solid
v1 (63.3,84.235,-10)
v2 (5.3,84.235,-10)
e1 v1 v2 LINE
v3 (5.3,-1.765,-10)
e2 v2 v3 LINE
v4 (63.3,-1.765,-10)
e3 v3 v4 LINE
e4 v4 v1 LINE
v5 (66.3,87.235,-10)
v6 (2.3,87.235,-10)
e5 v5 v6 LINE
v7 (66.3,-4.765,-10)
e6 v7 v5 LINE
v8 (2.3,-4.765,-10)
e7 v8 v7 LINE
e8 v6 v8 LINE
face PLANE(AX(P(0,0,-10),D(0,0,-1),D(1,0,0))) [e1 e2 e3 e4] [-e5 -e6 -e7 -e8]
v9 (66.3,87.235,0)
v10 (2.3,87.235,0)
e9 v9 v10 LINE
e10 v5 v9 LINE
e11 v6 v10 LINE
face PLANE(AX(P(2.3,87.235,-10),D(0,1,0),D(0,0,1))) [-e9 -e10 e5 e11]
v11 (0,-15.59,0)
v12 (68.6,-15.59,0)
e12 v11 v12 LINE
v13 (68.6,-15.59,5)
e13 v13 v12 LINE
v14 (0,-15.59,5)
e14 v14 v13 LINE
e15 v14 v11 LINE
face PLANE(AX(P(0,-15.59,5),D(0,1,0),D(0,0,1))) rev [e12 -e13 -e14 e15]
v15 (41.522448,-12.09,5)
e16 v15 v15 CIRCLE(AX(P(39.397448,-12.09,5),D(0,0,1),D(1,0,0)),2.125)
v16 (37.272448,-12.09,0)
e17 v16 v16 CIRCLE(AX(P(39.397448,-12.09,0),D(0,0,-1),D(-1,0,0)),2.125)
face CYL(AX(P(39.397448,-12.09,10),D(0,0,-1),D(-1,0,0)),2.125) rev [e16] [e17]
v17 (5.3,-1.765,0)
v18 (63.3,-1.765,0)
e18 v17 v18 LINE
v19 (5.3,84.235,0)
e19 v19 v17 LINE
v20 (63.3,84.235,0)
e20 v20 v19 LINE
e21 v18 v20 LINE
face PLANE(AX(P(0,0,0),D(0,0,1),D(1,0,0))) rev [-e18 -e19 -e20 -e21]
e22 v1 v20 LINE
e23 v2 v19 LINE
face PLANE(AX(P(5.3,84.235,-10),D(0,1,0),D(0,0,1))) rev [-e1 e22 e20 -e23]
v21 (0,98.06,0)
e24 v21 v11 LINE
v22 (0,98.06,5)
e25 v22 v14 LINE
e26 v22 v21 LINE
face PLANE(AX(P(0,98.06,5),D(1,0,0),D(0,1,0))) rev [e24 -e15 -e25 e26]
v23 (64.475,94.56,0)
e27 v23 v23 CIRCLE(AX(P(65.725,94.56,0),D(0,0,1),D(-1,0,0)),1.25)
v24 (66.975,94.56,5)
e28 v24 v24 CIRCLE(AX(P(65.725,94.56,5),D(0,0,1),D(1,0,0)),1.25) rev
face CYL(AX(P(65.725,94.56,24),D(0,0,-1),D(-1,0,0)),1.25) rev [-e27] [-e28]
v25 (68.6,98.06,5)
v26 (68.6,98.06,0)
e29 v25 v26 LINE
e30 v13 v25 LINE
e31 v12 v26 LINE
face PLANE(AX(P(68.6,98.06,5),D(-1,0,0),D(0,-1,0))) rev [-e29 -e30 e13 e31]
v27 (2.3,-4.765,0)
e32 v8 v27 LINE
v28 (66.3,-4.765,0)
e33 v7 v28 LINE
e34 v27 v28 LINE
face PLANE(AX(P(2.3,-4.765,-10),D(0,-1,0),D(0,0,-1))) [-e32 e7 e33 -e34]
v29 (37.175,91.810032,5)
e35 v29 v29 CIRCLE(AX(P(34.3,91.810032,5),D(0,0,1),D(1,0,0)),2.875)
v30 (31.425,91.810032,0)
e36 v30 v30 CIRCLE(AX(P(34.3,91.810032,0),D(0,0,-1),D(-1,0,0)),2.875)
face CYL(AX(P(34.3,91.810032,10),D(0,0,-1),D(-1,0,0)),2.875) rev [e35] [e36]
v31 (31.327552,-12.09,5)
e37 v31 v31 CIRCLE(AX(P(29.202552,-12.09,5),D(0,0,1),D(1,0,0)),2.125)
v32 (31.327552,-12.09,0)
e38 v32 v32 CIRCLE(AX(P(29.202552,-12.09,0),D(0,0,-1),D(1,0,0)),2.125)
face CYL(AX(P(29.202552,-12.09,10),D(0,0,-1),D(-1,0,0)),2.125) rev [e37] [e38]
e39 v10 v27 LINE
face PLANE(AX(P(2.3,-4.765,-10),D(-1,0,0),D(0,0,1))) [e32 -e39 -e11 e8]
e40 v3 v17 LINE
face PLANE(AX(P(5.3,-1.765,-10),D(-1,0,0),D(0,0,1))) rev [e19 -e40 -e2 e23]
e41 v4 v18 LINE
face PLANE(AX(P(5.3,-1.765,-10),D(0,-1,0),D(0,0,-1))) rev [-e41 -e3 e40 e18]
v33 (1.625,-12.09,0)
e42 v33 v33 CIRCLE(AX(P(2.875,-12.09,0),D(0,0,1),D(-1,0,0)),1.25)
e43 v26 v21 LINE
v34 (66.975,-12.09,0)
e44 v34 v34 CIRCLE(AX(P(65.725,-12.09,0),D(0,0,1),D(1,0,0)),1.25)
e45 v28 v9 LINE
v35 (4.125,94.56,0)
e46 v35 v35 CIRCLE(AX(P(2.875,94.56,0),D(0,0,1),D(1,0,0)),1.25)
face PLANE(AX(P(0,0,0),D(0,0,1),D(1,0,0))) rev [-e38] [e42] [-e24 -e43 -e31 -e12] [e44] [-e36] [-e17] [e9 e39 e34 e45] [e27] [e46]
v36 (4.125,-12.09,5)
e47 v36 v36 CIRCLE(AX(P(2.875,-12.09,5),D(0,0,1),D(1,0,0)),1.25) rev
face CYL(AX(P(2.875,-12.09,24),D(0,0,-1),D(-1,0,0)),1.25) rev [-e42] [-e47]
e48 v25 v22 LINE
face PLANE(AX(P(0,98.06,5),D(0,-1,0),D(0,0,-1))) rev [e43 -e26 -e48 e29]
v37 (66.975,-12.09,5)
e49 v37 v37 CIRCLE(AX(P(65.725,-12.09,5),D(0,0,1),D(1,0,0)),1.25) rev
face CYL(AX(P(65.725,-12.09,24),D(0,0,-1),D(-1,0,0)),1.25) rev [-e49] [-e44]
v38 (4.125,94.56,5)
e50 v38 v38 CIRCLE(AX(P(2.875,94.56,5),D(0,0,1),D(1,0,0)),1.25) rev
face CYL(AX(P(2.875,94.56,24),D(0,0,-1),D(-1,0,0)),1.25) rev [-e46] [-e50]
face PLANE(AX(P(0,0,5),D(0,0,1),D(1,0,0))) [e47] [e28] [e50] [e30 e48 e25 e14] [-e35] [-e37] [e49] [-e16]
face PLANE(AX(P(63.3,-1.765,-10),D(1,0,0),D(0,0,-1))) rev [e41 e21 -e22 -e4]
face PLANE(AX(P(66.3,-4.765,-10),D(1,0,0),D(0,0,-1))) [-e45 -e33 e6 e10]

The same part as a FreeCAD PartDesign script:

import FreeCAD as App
import Part
import Sketcher

V = App.Vector

doc = App.newDocument("Part")
body = doc.addObject("PartDesign::Body", "Body")

# Sketch on XY plane
sketch1 = body.newObject("Sketcher::SketchObject", "Sketch")
sketch1.AttachmentSupport = (doc.getObject("XY_Plane"), [""])
sketch1.MapMode = "FlatFace"
sketch1.addGeometry([
    Part.LineSegment(V(0, 98, 0), V(0, -16, 0)),
    Part.LineSegment(V(0, -16, 0), V(69, -16, 0)),
    Part.LineSegment(V(69, -16, 0), V(69, 98, 0)),
    Part.LineSegment(V(69, 98, 0), V(0, 98, 0)),
], False)
sketch1.addConstraint([
    Sketcher.Constraint("Coincident", 0, 2, 1, 1),
    Sketcher.Constraint("Coincident", 1, 2, 2, 1),
    Sketcher.Constraint("Coincident", 2, 2, 3, 1),
    Sketcher.Constraint("Coincident", 3, 2, 0, 1),
    Sketcher.Constraint("Vertical", 0),
    Sketcher.Constraint("Horizontal", 1),
    Sketcher.Constraint("Vertical", 2),
    Sketcher.Constraint("Horizontal", 3),
    Sketcher.Constraint("PointOnObject", 0, 2, -2),
    Sketcher.Constraint("DistanceX", 1, 1, 1, 2, 68.6),
    Sketcher.Constraint("DistanceY", 0, 2, 0, 1, 113.65),
    Sketcher.Constraint("DistanceY", 0, 2, -1, 1, 15.59),
])
pad1 = body.newObject("PartDesign::Pad", "Pad")
pad1.Profile = sketch1
pad1.Length = 5

# Sketch on XY plane
sketch2 = body.newObject("Sketcher::SketchObject", "Sketch001")
sketch2.AttachmentSupport = (doc.getObject("XY_Plane"), [""])
sketch2.MapMode = "FlatFace"
sketch2.addGeometry([
    Part.Circle(V(2.5, 2.3, 0), V(0, 0, 1), 1.2),
    Part.Circle(V(2.5, 30.5, 0), V(0, 0, 1), 1.2),
    Part.Circle(V(54.6, 35.3, 0), V(0, 0, 1), 1.2),
    Part.Circle(V(53.4, -13, 0), V(0, 0, 1), 1.2),
], False)
sketch2.addConstraint([
    Sketcher.Constraint("Equal", 0, 1),
    Sketcher.Constraint("Equal", 1, 2),
    Sketcher.Constraint("Equal", 2, 3),
    Sketcher.Constraint("Vertical", 0, 3, 1, 3),
    Sketcher.Constraint("Diameter", 0, 2.5),
    Sketcher.Constraint("DistanceX", -1, 1, 2, 3, 54.6),
    Sketcher.Constraint("DistanceY", 3, 3, 1, 3, 43.5),
    Sketcher.Constraint("DistanceX", -1, 1, 0, 3, 2.54),
    Sketcher.Constraint("DistanceY", -1, 1, 0, 3, 2.28),
    Sketcher.Constraint("DistanceY", -1, 1, 1, 3, 30.45),
    Sketcher.Constraint("DistanceY", -1, 1, 2, 3, 35.27),
    Sketcher.Constraint("DistanceX", -1, 1, 3, 3, 53.35),
])
pocket1 = body.newObject("PartDesign::Pocket", "Pocket")
pocket1.Profile = sketch2
pocket1.Type = "ThroughAll"
pocket1.Midplane = True

# Sketch on XY plane
sketch3 = body.newObject("Sketcher::SketchObject", "Sketch002")
sketch3.AttachmentSupport = (doc.getObject("XY_Plane"), [""])
sketch3.MapMode = "FlatFace"
sketch3.addGeometry([
    Part.Circle(V(8.6, 86.1, 0), V(0, 0, 1), 1.2),
    Part.Circle(V(60, 86.1, 0), V(0, 0, 1), 1.2),
    Part.Circle(V(8.6, 42.8, 0), V(0, 0, 1), 1.2),
    Part.Circle(V(60, 42.8, 0), V(0, 0, 1), 1.2),
], False)
sketch3.addConstraint([
    Sketcher.Constraint("Equal", 0, 1),
    Sketcher.Constraint("Equal", 1, 2),
    Sketcher.Constraint("Equal", 2, 3),
    Sketcher.Constraint("Horizontal", 0, 3, 1, 3),
    Sketcher.Constraint("Horizontal", 2, 3, 3, 3),
    Sketcher.Constraint("Vertical", 0, 3, 2, 3),
    Sketcher.Constraint("Vertical", 1, 3, 3, 3),
    Sketcher.Constraint("Diameter", 0, 2.5),
    Sketcher.Constraint("DistanceY", -1, 1, 0, 3, 86.06),
    Sketcher.Constraint("DistanceY", -1, 1, 2, 3, 42.81),
    Sketcher.Constraint("DistanceX", 0, 3, 1, 3, 51.35),
    Sketcher.Constraint("DistanceX", -1, 1, 0, 3, 8.625),
])
pocket2 = body.newObject("PartDesign::Pocket", "Pocket001")
pocket2.Profile = sketch3
pocket2.Length = 20
pocket2.Reversed = True

# Sketch on XY plane
sketch4 = body.newObject("Sketcher::SketchObject", "Sketch003")
sketch4.AttachmentSupport = (doc.getObject("XY_Plane"), [""])
sketch4.MapMode = "FlatFace"
sketch4.addGeometry([
    Part.Circle(V(29.2, 94.6, 0), V(0, 0, 1), 2),
    Part.Circle(V(39.4, 94.6, 0), V(0, 0, 1), 2),
], False)
sketch4.addConstraint([
    Sketcher.Constraint("Equal", 0, 1),
    Sketcher.Constraint("Horizontal", 0, 3, 1, 3),
    Sketcher.Constraint("Diameter", 0, 4.0),
    Sketcher.Constraint("DistanceY", -1, 1, 0, 3, 94.56),
    Sketcher.Constraint("DistanceX", -1, 1, 0, 3, 29.202552),
    Sketcher.Constraint("DistanceX", -1, 1, 1, 3, 39.397448),
])
pocket3 = body.newObject("PartDesign::Pocket", "Pocket002")
pocket3.Profile = sketch4
pocket3.Length = 13
pocket3.Reversed = True

# Sketch on XY plane
sketch5 = body.newObject("Sketcher::SketchObject", "Sketch004")
sketch5.AttachmentSupport = (doc.getObject("XY_Plane"), [""])
sketch5.MapMode = "FlatFace"
sketch5.addGeometry([
    Part.Circle(V(2.9, 94.6, 0), V(0, 0, 1), 1.2),
    Part.Circle(V(65.7, 94.6, 0), V(0, 0, 1), 1.2),
    Part.Circle(V(65.7, -12.1, 0), V(0, 0, 1), 1.2),
    Part.Circle(V(2.9, -12.1, 0), V(0, 0, 1), 1.2),
], False)
sketch5.addConstraint([
    Sketcher.Constraint("Equal", 0, 1),
    Sketcher.Constraint("Equal", 1, 2),
    Sketcher.Constraint("Equal", 2, 3),
    Sketcher.Constraint("Horizontal", 0, 3, 1, 3),
    Sketcher.Constraint("Horizontal", 2, 3, 3, 3),
    Sketcher.Constraint("Vertical", 1, 3, 2, 3),
    Sketcher.Constraint("Vertical", 0, 3, 3, 3),
    Sketcher.Constraint("Diameter", 0, 2.5),
    Sketcher.Constraint("DistanceY", -1, 1, 0, 3, 94.56),
    Sketcher.Constraint("DistanceY", 2, 3, -1, 1, 12.09),
    Sketcher.Constraint("DistanceX", 0, 3, 1, 3, 62.85),
    Sketcher.Constraint("DistanceX", -1, 1, 0, 3, 2.875),
])
pocket4 = body.newObject("PartDesign::Pocket", "Pocket003")
pocket4.Profile = sketch5
pocket4.Length = 24
pocket4.Reversed = True

# Sketch on XY plane
sketch6 = body.newObject("Sketcher::SketchObject", "Sketch005")
sketch6.AttachmentSupport = (doc.getObject("XY_Plane"), [""])
sketch6.MapMode = "FlatFace"
sketch6.addGeometry([
    Part.Circle(V(53.4, -13, 0), V(0, 0, 1), 1.2),  # 0
    Part.Circle(V(2.5, 2.3, 0), V(0, 0, 1), 1.2),  # 1
    Part.Circle(V(2.5, 30.5, 0), V(0, 0, 1), 1.2),  # 2
    Part.Circle(V(54.6, 35.3, 0), V(0, 0, 1), 1.2),  # 3
    Part.Circle(V(60, 42.8, 0), V(0, 0, 1), 1.2),  # 4
    Part.Circle(V(8.6, 42.8, 0), V(0, 0, 1), 1.2),  # 5
    Part.Circle(V(60, 86.1, 0), V(0, 0, 1), 1.2),  # 6
    Part.Circle(V(39.4, 94.6, 0), V(0, 0, 1), 2),  # 7
    Part.Circle(V(29.2, 94.6, 0), V(0, 0, 1), 2),  # 8
    Part.Circle(V(8.6, 86.1, 0), V(0, 0, 1), 1.2),  # 9
], False)
sketch6.addConstraint([
    Sketcher.Constraint("Equal", 0, 1),
    Sketcher.Constraint("Equal", 1, 2),
    Sketcher.Constraint("Equal", 2, 3),
    Sketcher.Constraint("Equal", 3, 4),
    Sketcher.Constraint("Equal", 4, 5),
    Sketcher.Constraint("Equal", 5, 6),
    Sketcher.Constraint("Equal", 7, 8),
    Sketcher.Constraint("Equal", 6, 9),
    Sketcher.Constraint("Horizontal", 4, 3, 5, 3),
    Sketcher.Constraint("Horizontal", 7, 3, 8, 3),
    Sketcher.Constraint("Horizontal", 6, 3, 9, 3),
    Sketcher.Constraint("Vertical", 1, 3, 2, 3),
    Sketcher.Constraint("Vertical", 4, 3, 6, 3),
    Sketcher.Constraint("Vertical", 5, 3, 9, 3),
    Sketcher.Constraint("Diameter", 7, 4.0),
    Sketcher.Constraint("Diameter", 0, 2.5),
    Sketcher.Constraint("DistanceX", -1, 1, 3, 3, 54.6),
    Sketcher.Constraint("DistanceY", 0, 3, 2, 3, 43.5),
    Sketcher.Constraint("DistanceY", 6, 3, 7, 3, 8.5),
    Sketcher.Constraint("DistanceX", -1, 1, 0, 3, 53.35),
    Sketcher.Constraint("DistanceY", 0, 3, -1, 1, 13.05),
    Sketcher.Constraint("DistanceX", -1, 1, 1, 3, 2.54),
    Sketcher.Constraint("DistanceY", -1, 1, 1, 3, 2.28),
    Sketcher.Constraint("DistanceY", -1, 1, 3, 3, 35.27),
    Sketcher.Constraint("DistanceY", -1, 1, 4, 3, 42.81),
    Sketcher.Constraint("DistanceY", -1, 1, 6, 3, 86.06),
    Sketcher.Constraint("DistanceX", 5, 3, 4, 3, 51.35),
    Sketcher.Constraint("DistanceX", -1, 1, 4, 3, 59.975),
    Sketcher.Constraint("DistanceX", -1, 1, 7, 3, 39.397448),
    Sketcher.Constraint("DistanceX", -1, 1, 8, 3, 29.202552),
])
pad2 = body.newObject("PartDesign::Pad", "Pad001")
pad2.Profile = sketch6
pad2.Length = 5

# Sketch on XY plane
sketch7 = body.newObject("Sketcher::SketchObject", "Sketch006")
sketch7.AttachmentSupport = (doc.getObject("XY_Plane"), [""])
sketch7.MapMode = "FlatFace"
sketch7.AttachmentOffset = App.Placement(V(0, 0, 5), App.Rotation())
sketch7.addGeometry([
    Part.LineSegment(V(2, 87, 0), V(2, -5, 0)),  # 0
    Part.LineSegment(V(2, -5, 0), V(66, -5, 0)),  # 1
    Part.LineSegment(V(66, -5, 0), V(66, 87, 0)),  # 2
    Part.LineSegment(V(66, 87, 0), V(2, 87, 0)),  # 3
    Part.LineSegment(V(63, -2, 0), V(5, -2, 0)),  # 4
    Part.LineSegment(V(5, -2, 0), V(5, 84, 0)),  # 5
    Part.LineSegment(V(5, 84, 0), V(63, 84, 0)),  # 6
    Part.LineSegment(V(63, 84, 0), V(63, -2, 0)),  # 7
], False)
sketch7.addConstraint([
    Sketcher.Constraint("Coincident", 0, 2, 1, 1),
    Sketcher.Constraint("Coincident", 1, 2, 2, 1),
    Sketcher.Constraint("Coincident", 2, 2, 3, 1),
    Sketcher.Constraint("Coincident", 3, 2, 0, 1),
    Sketcher.Constraint("Coincident", 4, 2, 5, 1),
    Sketcher.Constraint("Coincident", 5, 2, 6, 1),
    Sketcher.Constraint("Coincident", 6, 2, 7, 1),
    Sketcher.Constraint("Coincident", 7, 2, 4, 1),
    Sketcher.Constraint("Vertical", 0),
    Sketcher.Constraint("Horizontal", 1),
    Sketcher.Constraint("Vertical", 2),
    Sketcher.Constraint("Horizontal", 3),
    Sketcher.Constraint("Horizontal", 4),
    Sketcher.Constraint("Vertical", 5),
    Sketcher.Constraint("Horizontal", 6),
    Sketcher.Constraint("Vertical", 7),
    Sketcher.Constraint("DistanceX", 1, 1, 1, 2, 64.0),
    Sketcher.Constraint("DistanceX", 4, 2, 4, 1, 58.0),
    Sketcher.Constraint("DistanceY", 0, 2, 0, 1, 92.0),
    Sketcher.Constraint("DistanceY", 5, 1, 5, 2, 86.0),
    Sketcher.Constraint("DistanceX", 0, 2, 4, 2, 3.0),
    Sketcher.Constraint("DistanceY", 0, 2, 4, 2, 3.0),
    Sketcher.Constraint("DistanceX", -1, 1, 0, 2, 2.3),
    Sketcher.Constraint("DistanceY", 0, 2, -1, 1, 4.765),
])
pad3 = body.newObject("PartDesign::Pad", "Pad002")
pad3.Profile = sketch7
pad3.Length = 10
doc.recompute()

datumplane = body.newObject("PartDesign::Plane", "DatumPlane")
datumplane.AttachmentSupport = (doc.getObject("XY_Plane"), [""])
datumplane.MapMode = "FlatFace"
datumplane.AttachmentOffset = App.Placement(V(0, 0, 2.5), App.Rotation())
mirrored = body.newObject("PartDesign::Mirrored", "Mirrored")
mirrored.Originals = [pad3]
mirrored.MirrorPlane = (datumplane, [""])
body.Tip = mirrored

# Sketch on XZ plane
sketch8 = body.newObject("Sketcher::SketchObject", "Sketch007")
sketch8.AttachmentSupport = (doc.getObject("XZ_Plane"), [""])
sketch8.MapMode = "FlatFace"
sketch8.AttachmentOffset = App.Placement(V(0, 0, -87.235), App.Rotation())
sketch8.addGeometry([
    Part.LineSegment(V(2, 5, 0), V(2, 15, 0)),
    Part.LineSegment(V(2, 15, 0), V(66, 15, 0)),
    Part.LineSegment(V(66, 15, 0), V(66, 5, 0)),
    Part.LineSegment(V(66, 5, 0), V(2, 5, 0)),
], False)
sketch8.addConstraint([
    Sketcher.Constraint("Coincident", 0, 2, 1, 1),
    Sketcher.Constraint("Coincident", 1, 2, 2, 1),
    Sketcher.Constraint("Coincident", 2, 2, 3, 1),
    Sketcher.Constraint("Coincident", 3, 2, 0, 1),
    Sketcher.Constraint("Vertical", 0),
    Sketcher.Constraint("Horizontal", 1),
    Sketcher.Constraint("Vertical", 2),
    Sketcher.Constraint("Horizontal", 3),
    Sketcher.Constraint("DistanceX", 1, 1, 1, 2, 64.0),
    Sketcher.Constraint("DistanceY", 0, 1, 0, 2, 10.0),
    Sketcher.Constraint("DistanceY", -1, 1, 0, 2, 15.0),
    Sketcher.Constraint("DistanceX", -1, 1, 0, 2, 2.3),
])
pocket5 = body.newObject("PartDesign::Pocket", "Pocket004")
pocket5.Profile = sketch8
pocket5.Type = "ThroughAll"
pocket5.Reversed = True

# Sketch on XY plane
sketch9 = body.newObject("Sketcher::SketchObject", "Sketch008")
sketch9.AttachmentSupport = (doc.getObject("XY_Plane"), [""])
sketch9.MapMode = "FlatFace"
sketch9.addGeometry(Part.Circle(V(34.3, 91.8, 0), V(0, 0, 1), 2.9), False)
sketch9.addConstraint([
    Sketcher.Constraint("Diameter", 0, 5.75),
    Sketcher.Constraint("DistanceX", -1, 1, 0, 3, 34.3),
    Sketcher.Constraint("DistanceY", -1, 1, 0, 3, 91.810032),
])
pocket6 = body.newObject("PartDesign::Pocket", "Pocket005")
pocket6.Profile = sketch9
pocket6.Length = 10
pocket6.Reversed = True

# Sketch on XY plane
sketch10 = body.newObject("Sketcher::SketchObject", "Sketch009")
sketch10.AttachmentSupport = (doc.getObject("XY_Plane"), [""])
sketch10.MapMode = "FlatFace"
sketch10.addGeometry([
    Part.Circle(V(39.4, -12.1, 0), V(0, 0, 1), 2.1),
    Part.Circle(V(29.2, -12.1, 0), V(0, 0, 1), 2.1),
], False)
sketch10.addConstraint([
    Sketcher.Constraint("Equal", 0, 1),
    Sketcher.Constraint("Horizontal", 0, 3, 1, 3),
    Sketcher.Constraint("Diameter", 0, 4.25),
    Sketcher.Constraint("DistanceY", 0, 3, -1, 1, 12.09),
    Sketcher.Constraint("DistanceX", -1, 1, 0, 3, 39.397448),
    Sketcher.Constraint("DistanceX", -1, 1, 1, 3, 29.202552),
])
pocket7 = body.newObject("PartDesign::Pocket", "Pocket006")
pocket7.Profile = sketch10
pocket7.Length = 10
pocket7.Reversed = True

doc.recompute()
